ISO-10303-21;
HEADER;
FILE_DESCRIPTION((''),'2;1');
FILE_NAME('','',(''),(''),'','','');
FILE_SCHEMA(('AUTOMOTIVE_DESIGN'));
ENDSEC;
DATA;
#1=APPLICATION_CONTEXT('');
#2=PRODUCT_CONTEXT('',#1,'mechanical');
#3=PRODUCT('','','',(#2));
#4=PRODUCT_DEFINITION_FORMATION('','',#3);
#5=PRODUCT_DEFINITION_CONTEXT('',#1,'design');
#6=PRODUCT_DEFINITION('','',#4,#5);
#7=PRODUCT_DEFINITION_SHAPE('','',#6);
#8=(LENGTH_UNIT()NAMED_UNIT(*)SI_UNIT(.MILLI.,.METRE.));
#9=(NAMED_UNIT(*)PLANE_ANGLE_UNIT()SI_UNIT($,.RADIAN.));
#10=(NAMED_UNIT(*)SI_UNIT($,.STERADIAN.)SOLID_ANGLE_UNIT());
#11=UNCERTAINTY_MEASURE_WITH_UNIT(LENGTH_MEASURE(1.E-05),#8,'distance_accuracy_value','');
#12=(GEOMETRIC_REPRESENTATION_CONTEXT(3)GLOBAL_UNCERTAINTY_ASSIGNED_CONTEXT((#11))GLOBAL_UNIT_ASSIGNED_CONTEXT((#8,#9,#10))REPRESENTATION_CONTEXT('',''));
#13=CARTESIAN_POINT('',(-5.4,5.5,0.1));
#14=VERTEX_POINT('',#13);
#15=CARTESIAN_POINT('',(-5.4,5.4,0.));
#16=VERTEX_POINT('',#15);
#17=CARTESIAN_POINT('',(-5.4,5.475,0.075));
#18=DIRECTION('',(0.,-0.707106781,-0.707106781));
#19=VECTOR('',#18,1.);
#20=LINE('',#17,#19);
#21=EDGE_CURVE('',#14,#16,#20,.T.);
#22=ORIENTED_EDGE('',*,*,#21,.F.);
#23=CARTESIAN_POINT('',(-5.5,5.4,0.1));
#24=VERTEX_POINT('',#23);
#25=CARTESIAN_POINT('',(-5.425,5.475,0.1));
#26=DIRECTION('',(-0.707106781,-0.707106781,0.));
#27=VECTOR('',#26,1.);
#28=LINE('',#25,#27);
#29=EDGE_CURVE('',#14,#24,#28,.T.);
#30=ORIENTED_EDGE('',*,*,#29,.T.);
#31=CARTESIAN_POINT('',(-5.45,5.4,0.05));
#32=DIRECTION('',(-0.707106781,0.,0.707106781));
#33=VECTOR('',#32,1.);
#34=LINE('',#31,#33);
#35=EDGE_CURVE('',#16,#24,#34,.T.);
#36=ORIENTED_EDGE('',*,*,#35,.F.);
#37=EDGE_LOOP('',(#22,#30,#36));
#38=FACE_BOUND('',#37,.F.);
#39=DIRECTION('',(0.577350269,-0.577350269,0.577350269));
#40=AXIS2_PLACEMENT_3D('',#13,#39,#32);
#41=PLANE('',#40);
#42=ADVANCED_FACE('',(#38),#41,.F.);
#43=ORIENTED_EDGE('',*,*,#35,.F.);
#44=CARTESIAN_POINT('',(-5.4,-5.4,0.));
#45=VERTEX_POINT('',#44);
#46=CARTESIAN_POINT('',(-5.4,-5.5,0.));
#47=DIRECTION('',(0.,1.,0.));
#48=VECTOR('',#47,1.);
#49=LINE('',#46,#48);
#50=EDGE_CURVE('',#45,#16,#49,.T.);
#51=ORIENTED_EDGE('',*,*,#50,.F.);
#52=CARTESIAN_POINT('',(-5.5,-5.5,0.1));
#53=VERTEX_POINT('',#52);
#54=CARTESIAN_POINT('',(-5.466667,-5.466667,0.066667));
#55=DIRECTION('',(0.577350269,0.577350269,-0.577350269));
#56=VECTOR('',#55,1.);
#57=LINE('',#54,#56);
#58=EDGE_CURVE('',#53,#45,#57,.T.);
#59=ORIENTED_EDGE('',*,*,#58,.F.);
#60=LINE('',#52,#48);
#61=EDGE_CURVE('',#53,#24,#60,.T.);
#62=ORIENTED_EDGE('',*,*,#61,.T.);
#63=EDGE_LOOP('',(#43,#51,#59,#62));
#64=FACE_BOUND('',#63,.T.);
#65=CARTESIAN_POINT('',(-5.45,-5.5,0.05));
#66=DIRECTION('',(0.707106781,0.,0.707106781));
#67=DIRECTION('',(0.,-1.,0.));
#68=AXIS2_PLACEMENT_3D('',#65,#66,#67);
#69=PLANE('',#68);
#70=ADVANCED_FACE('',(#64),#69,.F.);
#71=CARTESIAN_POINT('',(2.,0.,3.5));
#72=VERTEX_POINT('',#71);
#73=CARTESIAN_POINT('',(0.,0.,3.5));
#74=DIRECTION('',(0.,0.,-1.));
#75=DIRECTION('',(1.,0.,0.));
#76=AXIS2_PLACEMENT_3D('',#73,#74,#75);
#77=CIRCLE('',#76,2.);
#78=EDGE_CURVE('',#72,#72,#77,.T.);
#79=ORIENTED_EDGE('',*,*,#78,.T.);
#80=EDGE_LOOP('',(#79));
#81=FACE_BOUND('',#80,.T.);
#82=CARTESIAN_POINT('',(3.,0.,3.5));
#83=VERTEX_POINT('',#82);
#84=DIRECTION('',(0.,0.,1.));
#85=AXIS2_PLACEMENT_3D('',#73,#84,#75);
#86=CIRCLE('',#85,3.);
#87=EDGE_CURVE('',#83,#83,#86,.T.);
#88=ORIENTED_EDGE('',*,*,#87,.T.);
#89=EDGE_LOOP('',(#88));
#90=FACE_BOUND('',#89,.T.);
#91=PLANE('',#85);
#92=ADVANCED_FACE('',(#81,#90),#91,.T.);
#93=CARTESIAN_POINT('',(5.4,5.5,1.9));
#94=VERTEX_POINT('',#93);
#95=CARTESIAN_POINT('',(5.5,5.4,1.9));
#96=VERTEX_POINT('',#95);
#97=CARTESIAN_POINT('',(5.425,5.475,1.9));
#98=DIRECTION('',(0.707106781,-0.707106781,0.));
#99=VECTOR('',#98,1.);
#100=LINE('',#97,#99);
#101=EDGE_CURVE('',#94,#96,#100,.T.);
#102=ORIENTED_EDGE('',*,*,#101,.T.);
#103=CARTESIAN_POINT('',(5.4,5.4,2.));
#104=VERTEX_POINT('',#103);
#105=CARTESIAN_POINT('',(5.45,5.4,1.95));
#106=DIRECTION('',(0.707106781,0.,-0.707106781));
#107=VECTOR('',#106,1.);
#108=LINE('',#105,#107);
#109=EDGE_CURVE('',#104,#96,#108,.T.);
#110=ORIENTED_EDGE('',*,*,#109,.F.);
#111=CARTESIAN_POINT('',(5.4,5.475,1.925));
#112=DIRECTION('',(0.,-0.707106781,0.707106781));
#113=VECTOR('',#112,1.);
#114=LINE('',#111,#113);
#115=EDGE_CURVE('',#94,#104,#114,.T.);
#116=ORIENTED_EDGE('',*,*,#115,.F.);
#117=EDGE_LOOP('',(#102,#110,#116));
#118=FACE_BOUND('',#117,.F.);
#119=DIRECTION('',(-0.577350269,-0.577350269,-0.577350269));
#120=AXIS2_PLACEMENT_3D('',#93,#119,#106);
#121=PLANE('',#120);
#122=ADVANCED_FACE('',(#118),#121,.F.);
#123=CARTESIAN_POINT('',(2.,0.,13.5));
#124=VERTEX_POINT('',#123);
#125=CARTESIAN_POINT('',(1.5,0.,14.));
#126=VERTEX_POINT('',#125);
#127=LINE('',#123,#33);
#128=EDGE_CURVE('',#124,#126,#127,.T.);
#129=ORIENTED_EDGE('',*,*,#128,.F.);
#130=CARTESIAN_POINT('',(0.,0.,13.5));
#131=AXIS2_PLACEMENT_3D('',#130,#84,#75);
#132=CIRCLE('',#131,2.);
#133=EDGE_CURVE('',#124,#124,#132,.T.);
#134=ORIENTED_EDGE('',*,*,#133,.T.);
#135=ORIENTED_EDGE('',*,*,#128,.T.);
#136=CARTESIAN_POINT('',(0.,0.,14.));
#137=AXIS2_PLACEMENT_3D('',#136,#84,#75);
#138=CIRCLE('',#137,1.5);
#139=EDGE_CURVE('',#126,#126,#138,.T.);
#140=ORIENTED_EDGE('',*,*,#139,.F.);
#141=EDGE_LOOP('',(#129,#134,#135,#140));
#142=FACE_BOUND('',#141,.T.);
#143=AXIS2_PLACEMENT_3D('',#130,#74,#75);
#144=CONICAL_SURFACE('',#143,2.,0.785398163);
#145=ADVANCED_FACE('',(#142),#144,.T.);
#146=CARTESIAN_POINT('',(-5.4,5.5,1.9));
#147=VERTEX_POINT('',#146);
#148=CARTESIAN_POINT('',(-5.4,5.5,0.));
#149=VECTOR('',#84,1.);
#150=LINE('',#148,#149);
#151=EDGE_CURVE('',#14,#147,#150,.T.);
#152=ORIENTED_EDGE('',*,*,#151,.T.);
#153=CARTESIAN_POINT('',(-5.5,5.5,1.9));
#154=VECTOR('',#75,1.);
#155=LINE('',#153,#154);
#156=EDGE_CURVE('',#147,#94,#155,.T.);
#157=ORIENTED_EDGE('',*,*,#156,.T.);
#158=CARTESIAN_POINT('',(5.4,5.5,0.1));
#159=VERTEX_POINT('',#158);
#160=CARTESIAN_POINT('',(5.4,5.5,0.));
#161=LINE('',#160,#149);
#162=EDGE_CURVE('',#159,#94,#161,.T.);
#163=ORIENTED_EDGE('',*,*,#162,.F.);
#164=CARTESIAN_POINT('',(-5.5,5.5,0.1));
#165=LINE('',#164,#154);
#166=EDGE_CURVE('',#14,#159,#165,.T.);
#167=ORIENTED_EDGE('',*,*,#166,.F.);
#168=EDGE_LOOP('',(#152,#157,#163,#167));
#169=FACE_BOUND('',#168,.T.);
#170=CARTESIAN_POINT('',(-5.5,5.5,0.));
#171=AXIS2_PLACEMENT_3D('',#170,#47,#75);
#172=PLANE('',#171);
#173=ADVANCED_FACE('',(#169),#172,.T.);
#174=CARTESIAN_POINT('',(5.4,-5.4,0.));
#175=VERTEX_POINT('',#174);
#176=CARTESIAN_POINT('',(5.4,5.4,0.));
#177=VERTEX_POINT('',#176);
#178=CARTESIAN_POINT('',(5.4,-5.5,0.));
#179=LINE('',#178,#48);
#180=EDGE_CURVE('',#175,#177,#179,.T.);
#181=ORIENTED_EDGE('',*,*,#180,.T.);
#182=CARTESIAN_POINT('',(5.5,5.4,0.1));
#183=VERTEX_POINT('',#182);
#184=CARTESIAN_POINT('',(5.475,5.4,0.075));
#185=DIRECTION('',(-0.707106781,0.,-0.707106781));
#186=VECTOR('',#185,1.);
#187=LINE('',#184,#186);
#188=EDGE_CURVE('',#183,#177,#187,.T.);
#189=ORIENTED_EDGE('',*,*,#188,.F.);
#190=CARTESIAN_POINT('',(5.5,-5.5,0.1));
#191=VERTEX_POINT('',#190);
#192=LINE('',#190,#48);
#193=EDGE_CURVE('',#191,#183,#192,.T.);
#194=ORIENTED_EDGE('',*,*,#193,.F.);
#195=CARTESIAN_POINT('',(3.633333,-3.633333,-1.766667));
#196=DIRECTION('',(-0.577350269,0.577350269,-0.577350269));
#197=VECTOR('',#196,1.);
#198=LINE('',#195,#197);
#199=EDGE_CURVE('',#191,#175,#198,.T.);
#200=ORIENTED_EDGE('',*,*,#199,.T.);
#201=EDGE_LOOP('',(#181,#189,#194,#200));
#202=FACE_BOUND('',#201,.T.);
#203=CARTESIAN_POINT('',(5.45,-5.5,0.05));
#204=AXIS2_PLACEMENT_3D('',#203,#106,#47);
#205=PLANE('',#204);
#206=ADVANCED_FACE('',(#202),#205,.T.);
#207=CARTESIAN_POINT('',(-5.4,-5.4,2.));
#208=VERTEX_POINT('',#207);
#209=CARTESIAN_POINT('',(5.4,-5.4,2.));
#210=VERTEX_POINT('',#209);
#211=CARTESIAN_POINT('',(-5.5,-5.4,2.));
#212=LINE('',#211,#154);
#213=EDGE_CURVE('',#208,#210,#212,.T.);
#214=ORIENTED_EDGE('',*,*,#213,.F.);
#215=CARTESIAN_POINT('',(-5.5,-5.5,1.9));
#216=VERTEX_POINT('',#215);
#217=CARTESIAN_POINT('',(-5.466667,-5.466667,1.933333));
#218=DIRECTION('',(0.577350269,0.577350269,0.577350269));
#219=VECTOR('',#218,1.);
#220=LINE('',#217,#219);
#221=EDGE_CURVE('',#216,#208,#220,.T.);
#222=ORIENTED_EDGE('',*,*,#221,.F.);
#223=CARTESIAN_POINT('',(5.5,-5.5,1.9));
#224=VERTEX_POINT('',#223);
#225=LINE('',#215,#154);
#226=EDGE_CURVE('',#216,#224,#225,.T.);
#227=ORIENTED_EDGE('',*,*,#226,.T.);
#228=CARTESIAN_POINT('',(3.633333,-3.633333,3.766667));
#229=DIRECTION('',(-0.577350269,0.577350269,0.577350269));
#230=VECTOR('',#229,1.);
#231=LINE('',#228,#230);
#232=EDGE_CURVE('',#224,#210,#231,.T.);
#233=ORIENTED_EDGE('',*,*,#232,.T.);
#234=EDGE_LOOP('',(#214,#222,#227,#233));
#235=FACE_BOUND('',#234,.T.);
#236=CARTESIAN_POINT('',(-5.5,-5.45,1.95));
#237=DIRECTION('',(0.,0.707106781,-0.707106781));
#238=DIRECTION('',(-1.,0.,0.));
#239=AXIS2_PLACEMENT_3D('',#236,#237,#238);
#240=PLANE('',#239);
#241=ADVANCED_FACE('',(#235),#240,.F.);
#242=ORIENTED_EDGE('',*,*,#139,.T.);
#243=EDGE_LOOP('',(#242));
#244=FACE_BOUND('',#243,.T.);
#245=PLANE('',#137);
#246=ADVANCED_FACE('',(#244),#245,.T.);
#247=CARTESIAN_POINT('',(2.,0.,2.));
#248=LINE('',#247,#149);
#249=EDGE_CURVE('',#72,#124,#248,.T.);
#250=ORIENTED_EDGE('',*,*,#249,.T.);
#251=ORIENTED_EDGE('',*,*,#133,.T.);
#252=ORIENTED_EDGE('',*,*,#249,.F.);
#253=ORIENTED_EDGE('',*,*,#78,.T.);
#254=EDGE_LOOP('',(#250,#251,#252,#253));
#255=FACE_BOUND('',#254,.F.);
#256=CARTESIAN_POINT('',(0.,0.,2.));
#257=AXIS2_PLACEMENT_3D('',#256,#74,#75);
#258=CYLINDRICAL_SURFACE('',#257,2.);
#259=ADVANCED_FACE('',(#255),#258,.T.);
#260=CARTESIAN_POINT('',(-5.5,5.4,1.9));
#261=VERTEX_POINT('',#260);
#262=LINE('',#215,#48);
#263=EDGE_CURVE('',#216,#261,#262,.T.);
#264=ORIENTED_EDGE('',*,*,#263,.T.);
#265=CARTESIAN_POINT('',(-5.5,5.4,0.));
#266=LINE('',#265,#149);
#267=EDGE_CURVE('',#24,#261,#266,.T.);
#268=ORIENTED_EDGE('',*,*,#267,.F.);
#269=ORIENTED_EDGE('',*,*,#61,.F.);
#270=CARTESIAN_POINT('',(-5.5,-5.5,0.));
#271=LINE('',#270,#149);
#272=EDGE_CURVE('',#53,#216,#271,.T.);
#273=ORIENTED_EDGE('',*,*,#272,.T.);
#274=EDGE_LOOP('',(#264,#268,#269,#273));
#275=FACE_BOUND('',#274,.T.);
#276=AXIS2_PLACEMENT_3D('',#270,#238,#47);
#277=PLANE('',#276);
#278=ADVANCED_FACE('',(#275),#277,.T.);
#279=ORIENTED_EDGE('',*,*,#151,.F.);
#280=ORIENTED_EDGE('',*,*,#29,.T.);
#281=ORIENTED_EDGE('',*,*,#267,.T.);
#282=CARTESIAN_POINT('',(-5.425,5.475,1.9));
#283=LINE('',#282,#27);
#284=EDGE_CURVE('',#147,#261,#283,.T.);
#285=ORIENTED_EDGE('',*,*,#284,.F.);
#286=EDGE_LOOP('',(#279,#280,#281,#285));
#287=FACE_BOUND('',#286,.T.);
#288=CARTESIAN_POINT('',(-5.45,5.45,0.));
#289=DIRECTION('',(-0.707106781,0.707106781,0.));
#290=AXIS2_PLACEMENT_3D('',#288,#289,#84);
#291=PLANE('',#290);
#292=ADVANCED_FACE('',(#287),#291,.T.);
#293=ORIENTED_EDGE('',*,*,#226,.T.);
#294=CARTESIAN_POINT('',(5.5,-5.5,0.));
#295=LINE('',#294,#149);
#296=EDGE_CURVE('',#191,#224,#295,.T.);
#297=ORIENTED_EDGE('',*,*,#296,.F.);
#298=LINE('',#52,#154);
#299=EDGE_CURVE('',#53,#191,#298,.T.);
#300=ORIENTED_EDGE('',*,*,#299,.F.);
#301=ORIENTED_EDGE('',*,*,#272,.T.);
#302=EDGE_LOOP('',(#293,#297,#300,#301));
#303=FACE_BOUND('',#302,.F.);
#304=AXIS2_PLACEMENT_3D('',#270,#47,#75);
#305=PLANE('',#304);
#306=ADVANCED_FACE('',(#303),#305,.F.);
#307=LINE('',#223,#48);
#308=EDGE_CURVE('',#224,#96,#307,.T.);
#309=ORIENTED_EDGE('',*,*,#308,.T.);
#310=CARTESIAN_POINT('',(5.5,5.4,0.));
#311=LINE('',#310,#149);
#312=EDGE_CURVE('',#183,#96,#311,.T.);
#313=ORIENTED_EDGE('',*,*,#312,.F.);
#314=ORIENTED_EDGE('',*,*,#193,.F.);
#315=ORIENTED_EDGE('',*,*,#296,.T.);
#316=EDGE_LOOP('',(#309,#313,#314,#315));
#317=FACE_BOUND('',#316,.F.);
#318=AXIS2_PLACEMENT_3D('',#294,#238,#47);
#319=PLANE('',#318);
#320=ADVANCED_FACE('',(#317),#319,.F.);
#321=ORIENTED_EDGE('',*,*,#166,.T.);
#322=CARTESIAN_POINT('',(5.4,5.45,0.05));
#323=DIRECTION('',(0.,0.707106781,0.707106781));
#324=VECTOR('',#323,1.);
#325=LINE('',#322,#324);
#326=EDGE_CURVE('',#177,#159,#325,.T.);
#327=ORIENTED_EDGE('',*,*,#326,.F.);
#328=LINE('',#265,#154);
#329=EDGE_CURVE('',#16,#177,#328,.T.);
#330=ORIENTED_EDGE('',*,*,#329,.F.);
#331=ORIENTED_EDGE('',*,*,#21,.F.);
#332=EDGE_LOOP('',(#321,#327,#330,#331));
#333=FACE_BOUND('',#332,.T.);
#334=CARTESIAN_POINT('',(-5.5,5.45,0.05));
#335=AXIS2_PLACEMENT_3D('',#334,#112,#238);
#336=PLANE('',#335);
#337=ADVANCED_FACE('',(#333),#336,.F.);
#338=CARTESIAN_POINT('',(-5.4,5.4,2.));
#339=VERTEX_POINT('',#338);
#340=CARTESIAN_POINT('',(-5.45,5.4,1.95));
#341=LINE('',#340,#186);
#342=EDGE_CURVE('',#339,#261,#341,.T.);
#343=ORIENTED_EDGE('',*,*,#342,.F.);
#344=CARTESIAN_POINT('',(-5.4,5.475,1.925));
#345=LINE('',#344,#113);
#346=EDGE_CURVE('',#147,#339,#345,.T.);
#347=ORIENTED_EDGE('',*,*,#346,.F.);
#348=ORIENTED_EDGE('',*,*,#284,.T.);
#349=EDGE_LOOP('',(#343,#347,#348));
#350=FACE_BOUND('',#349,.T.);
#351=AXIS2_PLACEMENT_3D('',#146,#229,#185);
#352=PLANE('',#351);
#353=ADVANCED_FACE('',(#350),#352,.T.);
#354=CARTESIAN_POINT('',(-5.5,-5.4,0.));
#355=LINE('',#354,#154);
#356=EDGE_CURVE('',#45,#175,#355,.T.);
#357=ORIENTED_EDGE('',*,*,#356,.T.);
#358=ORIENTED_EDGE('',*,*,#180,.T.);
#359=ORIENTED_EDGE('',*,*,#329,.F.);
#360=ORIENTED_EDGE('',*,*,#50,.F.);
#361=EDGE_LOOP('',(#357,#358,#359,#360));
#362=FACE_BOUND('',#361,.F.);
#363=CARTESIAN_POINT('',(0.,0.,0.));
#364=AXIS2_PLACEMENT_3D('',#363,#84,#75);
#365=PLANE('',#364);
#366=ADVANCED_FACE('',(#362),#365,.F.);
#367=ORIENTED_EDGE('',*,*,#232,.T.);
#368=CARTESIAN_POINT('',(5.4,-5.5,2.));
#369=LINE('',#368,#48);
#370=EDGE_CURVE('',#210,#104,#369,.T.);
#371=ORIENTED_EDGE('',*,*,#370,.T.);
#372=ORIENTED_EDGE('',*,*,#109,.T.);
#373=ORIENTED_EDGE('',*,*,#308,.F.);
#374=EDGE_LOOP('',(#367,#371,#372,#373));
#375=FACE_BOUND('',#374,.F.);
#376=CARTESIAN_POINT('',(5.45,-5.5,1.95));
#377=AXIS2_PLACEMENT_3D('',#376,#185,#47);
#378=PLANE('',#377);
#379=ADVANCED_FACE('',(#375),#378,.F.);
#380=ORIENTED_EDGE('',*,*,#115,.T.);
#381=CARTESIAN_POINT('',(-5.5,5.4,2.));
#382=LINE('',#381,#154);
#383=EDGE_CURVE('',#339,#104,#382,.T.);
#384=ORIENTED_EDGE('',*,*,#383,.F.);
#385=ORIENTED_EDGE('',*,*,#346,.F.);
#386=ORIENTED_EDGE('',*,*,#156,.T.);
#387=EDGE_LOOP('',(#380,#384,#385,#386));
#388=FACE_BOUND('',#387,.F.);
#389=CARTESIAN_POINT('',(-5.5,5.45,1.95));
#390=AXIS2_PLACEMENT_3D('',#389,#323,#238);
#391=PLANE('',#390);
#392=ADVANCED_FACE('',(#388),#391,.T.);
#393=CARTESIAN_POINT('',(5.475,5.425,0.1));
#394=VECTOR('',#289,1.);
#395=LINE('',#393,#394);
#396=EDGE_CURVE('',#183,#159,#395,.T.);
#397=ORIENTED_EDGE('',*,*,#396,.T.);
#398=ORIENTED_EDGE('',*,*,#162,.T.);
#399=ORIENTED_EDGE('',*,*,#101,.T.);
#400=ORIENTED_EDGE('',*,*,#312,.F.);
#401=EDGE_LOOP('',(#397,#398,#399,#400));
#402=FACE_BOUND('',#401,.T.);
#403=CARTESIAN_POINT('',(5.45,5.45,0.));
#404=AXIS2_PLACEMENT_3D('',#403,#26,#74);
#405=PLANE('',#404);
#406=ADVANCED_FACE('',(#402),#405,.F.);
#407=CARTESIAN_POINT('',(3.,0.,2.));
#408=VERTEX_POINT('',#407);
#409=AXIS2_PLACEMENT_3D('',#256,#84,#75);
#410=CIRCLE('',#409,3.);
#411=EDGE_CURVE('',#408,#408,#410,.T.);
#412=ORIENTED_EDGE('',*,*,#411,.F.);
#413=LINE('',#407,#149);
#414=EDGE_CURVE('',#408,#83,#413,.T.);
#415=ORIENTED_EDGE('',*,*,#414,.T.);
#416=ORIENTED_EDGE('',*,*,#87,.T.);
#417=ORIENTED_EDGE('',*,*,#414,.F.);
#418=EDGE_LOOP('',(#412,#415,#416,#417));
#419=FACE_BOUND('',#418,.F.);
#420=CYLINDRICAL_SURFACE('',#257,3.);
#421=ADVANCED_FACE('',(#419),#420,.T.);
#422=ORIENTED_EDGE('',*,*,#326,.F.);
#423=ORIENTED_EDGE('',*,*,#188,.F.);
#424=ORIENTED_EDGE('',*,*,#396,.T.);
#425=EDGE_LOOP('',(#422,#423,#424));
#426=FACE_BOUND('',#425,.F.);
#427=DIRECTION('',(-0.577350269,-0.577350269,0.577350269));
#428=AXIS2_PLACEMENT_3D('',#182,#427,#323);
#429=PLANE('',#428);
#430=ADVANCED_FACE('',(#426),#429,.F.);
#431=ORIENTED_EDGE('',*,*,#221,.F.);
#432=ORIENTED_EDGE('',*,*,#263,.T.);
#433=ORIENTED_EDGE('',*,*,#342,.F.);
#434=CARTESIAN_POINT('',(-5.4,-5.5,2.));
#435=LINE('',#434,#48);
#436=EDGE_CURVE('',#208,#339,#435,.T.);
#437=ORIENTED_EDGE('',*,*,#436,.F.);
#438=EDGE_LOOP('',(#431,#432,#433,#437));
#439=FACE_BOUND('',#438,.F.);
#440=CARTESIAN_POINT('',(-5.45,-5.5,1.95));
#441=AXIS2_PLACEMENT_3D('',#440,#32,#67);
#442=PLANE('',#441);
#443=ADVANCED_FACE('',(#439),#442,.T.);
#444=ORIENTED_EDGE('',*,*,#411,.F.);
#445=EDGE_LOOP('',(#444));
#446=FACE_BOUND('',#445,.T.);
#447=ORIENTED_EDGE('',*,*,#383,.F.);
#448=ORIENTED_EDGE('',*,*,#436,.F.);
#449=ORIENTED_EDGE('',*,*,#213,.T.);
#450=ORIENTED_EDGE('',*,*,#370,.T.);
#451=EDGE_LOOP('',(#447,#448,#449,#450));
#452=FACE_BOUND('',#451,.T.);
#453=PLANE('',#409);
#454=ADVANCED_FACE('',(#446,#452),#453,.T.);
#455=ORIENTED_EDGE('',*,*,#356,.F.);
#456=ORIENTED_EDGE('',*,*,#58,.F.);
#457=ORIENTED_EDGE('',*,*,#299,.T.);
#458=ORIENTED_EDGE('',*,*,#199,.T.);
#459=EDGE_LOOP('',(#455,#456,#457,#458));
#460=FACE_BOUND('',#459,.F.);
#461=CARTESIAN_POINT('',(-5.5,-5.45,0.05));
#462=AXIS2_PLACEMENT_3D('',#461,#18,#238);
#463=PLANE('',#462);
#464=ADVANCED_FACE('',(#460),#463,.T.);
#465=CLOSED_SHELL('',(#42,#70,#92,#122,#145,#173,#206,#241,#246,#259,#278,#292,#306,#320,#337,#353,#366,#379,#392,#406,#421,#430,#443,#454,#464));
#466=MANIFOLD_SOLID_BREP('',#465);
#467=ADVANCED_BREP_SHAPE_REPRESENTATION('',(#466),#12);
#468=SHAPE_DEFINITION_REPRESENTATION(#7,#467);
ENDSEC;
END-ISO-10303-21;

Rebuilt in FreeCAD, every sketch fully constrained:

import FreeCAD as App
import Part
import Sketcher
Q = App.Units.Quantity


def edges_at(feature, points):
    """Names of the edges that pass closest to the given points."""
    edges = feature.Shape.Edges
    near = lambda p: min(range(len(edges)), key=lambda i: edges[i].distToShape(Part.Vertex(*p))[0])
    return sorted({f"Edge{near(p) + 1}" for p in points})


def add_polygon(sketch, points):
    """Adds a closed chain of lines whose ends are joined by coincident constraints."""
    first, n = sketch.GeometryCount, len(points)
    for a, b in zip(points, points[1:] + points[:1]):
        sketch.addGeometry(Part.LineSegment(App.Vector(*a, 0), App.Vector(*b, 0)), False)
    for i in range(n):
        sketch.addConstraint(Sketcher.Constraint("Coincident", first + i, 2, first + (i + 1) % n, 1))

doc = App.newDocument("Part")
body = doc.addObject("PartDesign::Body", "Body")

# Sketch on XY plane
sketch1 = body.newObject("Sketcher::SketchObject", "Sketch")
sketch1.AttachmentSupport = (doc.getObject("XY_Plane"), [""])
sketch1.MapMode = "FlatFace"
add_polygon(sketch1, [(-5.5, 5.5), (-5.5, -5.5), (5.5, -5.5), (5.5, 5.5)])  # lines 0-3
sketch1.addConstraint([
    Sketcher.Constraint("Vertical", 0),
    Sketcher.Constraint("Horizontal", 1),
    Sketcher.Constraint("Vertical", 2),
    Sketcher.Constraint("Horizontal", 3),
    Sketcher.Constraint("Symmetric", 0, 2, 2, 2, -1, 1),
    Sketcher.Constraint("Equal", 3, 0),
    Sketcher.Constraint("DistanceX", 1, 1, 1, 2, Q("11 mm")),
])
pad1 = body.newObject("PartDesign::Pad", "Pad")
pad1.Profile = sketch1
pad1.Length = 2

# Sketch on XY plane
sketch2 = body.newObject("Sketcher::SketchObject", "Sketch001")
sketch2.AttachmentSupport = (doc.getObject("XY_Plane"), [""])
sketch2.MapMode = "FlatFace"
sketch2.AttachmentOffset = App.Placement(App.Vector(0, 0, 2), App.Rotation())
sketch2.addGeometry(Part.Circle(App.Vector(0, 0, 0), App.Vector(0, 0, 1), 2), False)
sketch2.addConstraint([
    Sketcher.Constraint("Coincident", 0, 3, -1, 1),
    Sketcher.Constraint("Diameter", 0, Q("4 mm")),
])
pad2 = body.newObject("PartDesign::Pad", "Pad001")
pad2.Profile = sketch2
pad2.Length = 12
doc.recompute()

chamfer = body.newObject("PartDesign::Chamfer", "Chamfer")
chamfer.Base = (pad2, edges_at(pad2, [
    (-5.5, 0, 2),
    (0, -5.5, 2),
    (5.5, 0, 2),
    (0, -5.5, 0),
    (-5.5, 0, 0),
    (0, 5.5, 0),
    (5.5, 0, 0),
    (0, 5.5, 2),
    (-5.5, 5.5, 1),
    (5.5, 5.5, 1),
]))
chamfer.Size = 0.1

# Sketch on XY plane
sketch3 = body.newObject("Sketcher::SketchObject", "Sketch002")
sketch3.AttachmentSupport = (doc.getObject("XY_Plane"), [""])
sketch3.MapMode = "FlatFace"
sketch3.AttachmentOffset = App.Placement(App.Vector(0, 0, 2), App.Rotation())
sketch3.addGeometry(Part.Circle(App.Vector(0, 0, 0), App.Vector(0, 0, 1), 3), False)
sketch3.addConstraint([
    Sketcher.Constraint("Coincident", 0, 3, -1, 1),
    Sketcher.Constraint("Diameter", 0, Q("6 mm")),
])
pad3 = body.newObject("PartDesign::Pad", "Pad002")
pad3.Profile = sketch3
pad3.Length = 1.5
doc.recompute()

chamfer2 = body.newObject("PartDesign::Chamfer", "Chamfer001")
chamfer2.Base = (pad3, edges_at(pad3, [(-2, 0, 14)]))
chamfer2.Size = 0.5

doc.recompute()
